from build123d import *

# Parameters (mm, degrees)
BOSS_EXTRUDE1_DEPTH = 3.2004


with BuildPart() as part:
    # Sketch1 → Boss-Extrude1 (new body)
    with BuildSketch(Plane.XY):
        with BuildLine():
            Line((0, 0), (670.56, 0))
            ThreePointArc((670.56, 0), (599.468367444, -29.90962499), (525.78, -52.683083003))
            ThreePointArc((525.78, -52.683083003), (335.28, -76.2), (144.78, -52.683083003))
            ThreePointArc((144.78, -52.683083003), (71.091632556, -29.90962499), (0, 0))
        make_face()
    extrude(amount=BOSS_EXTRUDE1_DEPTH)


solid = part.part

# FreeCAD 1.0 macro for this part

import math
import FreeCAD as App
import Part
import Sketcher
from FreeCAD import Vector
Q = App.Units.Quantity

doc = App.newDocument("Part")
body = doc.addObject("PartDesign::Body", "Body")

# Sketch on XY plane
sketch1 = body.newObject("Sketcher::SketchObject", "Sketch")
sketch1.AttachmentSupport = (doc.getObject("XY_Plane"), [""])
sketch1.MapMode = "FlatFace"
sketch1.addGeometry([
    Part.LineSegment(Vector(671, 0, 0), Vector(0, 0, 0)),
    Part.ArcOfCircle(Part.Circle(Vector(339, 706, 0), Vector(0, 0, 1), 783), math.radians(-115.64), math.radians(-104.35)),
    Part.ArcOfCircle(Part.Circle(Vector(335, 707, 0), Vector(0, 0, 1), 783), math.radians(-104), math.radians(-76)),
    Part.ArcOfCircle(Part.Circle(Vector(332, 706, 0), Vector(0, 0, 1), 783), math.radians(-75.65), math.radians(-64.36)),
], False)
sketch1.addConstraint([
    Sketcher.Constraint("Coincident", 0, 2, 1, 1),
    Sketcher.Constraint("Coincident", 1, 2, 2, 1),
    Sketcher.Constraint("Coincident", 2, 2, 3, 1),
    Sketcher.Constraint("Coincident", 3, 2, 0, 1),
    Sketcher.Constraint("Horizontal", 0),
    Sketcher.Constraint("Coincident", 0, 2, -1, 1),
    Sketcher.Constraint("Equal", 1, 2),
    Sketcher.Constraint("Equal", 2, 3),
    Sketcher.Constraint("Horizontal", 1, 3, 3, 3),
    Sketcher.Constraint("Horizontal", 1, 2, 2, 2),
    Sketcher.Constraint("Radius", 1, Q("30.84 in")),
    Sketcher.Constraint("DistanceX", 0, 2, 0, 1, Q("26.4 in")),
    Sketcher.Constraint("DistanceX", 1, 2, 2, 2, Q("15 in")),
    Sketcher.Constraint("DistanceY", -1, 1, 2, 3, Q("27.84 in")),
])
pad1 = body.newObject("PartDesign::Pad", "Pad")
pad1.Profile = sketch1
pad1.Length = Q("0.126 in")

doc.recompute()
